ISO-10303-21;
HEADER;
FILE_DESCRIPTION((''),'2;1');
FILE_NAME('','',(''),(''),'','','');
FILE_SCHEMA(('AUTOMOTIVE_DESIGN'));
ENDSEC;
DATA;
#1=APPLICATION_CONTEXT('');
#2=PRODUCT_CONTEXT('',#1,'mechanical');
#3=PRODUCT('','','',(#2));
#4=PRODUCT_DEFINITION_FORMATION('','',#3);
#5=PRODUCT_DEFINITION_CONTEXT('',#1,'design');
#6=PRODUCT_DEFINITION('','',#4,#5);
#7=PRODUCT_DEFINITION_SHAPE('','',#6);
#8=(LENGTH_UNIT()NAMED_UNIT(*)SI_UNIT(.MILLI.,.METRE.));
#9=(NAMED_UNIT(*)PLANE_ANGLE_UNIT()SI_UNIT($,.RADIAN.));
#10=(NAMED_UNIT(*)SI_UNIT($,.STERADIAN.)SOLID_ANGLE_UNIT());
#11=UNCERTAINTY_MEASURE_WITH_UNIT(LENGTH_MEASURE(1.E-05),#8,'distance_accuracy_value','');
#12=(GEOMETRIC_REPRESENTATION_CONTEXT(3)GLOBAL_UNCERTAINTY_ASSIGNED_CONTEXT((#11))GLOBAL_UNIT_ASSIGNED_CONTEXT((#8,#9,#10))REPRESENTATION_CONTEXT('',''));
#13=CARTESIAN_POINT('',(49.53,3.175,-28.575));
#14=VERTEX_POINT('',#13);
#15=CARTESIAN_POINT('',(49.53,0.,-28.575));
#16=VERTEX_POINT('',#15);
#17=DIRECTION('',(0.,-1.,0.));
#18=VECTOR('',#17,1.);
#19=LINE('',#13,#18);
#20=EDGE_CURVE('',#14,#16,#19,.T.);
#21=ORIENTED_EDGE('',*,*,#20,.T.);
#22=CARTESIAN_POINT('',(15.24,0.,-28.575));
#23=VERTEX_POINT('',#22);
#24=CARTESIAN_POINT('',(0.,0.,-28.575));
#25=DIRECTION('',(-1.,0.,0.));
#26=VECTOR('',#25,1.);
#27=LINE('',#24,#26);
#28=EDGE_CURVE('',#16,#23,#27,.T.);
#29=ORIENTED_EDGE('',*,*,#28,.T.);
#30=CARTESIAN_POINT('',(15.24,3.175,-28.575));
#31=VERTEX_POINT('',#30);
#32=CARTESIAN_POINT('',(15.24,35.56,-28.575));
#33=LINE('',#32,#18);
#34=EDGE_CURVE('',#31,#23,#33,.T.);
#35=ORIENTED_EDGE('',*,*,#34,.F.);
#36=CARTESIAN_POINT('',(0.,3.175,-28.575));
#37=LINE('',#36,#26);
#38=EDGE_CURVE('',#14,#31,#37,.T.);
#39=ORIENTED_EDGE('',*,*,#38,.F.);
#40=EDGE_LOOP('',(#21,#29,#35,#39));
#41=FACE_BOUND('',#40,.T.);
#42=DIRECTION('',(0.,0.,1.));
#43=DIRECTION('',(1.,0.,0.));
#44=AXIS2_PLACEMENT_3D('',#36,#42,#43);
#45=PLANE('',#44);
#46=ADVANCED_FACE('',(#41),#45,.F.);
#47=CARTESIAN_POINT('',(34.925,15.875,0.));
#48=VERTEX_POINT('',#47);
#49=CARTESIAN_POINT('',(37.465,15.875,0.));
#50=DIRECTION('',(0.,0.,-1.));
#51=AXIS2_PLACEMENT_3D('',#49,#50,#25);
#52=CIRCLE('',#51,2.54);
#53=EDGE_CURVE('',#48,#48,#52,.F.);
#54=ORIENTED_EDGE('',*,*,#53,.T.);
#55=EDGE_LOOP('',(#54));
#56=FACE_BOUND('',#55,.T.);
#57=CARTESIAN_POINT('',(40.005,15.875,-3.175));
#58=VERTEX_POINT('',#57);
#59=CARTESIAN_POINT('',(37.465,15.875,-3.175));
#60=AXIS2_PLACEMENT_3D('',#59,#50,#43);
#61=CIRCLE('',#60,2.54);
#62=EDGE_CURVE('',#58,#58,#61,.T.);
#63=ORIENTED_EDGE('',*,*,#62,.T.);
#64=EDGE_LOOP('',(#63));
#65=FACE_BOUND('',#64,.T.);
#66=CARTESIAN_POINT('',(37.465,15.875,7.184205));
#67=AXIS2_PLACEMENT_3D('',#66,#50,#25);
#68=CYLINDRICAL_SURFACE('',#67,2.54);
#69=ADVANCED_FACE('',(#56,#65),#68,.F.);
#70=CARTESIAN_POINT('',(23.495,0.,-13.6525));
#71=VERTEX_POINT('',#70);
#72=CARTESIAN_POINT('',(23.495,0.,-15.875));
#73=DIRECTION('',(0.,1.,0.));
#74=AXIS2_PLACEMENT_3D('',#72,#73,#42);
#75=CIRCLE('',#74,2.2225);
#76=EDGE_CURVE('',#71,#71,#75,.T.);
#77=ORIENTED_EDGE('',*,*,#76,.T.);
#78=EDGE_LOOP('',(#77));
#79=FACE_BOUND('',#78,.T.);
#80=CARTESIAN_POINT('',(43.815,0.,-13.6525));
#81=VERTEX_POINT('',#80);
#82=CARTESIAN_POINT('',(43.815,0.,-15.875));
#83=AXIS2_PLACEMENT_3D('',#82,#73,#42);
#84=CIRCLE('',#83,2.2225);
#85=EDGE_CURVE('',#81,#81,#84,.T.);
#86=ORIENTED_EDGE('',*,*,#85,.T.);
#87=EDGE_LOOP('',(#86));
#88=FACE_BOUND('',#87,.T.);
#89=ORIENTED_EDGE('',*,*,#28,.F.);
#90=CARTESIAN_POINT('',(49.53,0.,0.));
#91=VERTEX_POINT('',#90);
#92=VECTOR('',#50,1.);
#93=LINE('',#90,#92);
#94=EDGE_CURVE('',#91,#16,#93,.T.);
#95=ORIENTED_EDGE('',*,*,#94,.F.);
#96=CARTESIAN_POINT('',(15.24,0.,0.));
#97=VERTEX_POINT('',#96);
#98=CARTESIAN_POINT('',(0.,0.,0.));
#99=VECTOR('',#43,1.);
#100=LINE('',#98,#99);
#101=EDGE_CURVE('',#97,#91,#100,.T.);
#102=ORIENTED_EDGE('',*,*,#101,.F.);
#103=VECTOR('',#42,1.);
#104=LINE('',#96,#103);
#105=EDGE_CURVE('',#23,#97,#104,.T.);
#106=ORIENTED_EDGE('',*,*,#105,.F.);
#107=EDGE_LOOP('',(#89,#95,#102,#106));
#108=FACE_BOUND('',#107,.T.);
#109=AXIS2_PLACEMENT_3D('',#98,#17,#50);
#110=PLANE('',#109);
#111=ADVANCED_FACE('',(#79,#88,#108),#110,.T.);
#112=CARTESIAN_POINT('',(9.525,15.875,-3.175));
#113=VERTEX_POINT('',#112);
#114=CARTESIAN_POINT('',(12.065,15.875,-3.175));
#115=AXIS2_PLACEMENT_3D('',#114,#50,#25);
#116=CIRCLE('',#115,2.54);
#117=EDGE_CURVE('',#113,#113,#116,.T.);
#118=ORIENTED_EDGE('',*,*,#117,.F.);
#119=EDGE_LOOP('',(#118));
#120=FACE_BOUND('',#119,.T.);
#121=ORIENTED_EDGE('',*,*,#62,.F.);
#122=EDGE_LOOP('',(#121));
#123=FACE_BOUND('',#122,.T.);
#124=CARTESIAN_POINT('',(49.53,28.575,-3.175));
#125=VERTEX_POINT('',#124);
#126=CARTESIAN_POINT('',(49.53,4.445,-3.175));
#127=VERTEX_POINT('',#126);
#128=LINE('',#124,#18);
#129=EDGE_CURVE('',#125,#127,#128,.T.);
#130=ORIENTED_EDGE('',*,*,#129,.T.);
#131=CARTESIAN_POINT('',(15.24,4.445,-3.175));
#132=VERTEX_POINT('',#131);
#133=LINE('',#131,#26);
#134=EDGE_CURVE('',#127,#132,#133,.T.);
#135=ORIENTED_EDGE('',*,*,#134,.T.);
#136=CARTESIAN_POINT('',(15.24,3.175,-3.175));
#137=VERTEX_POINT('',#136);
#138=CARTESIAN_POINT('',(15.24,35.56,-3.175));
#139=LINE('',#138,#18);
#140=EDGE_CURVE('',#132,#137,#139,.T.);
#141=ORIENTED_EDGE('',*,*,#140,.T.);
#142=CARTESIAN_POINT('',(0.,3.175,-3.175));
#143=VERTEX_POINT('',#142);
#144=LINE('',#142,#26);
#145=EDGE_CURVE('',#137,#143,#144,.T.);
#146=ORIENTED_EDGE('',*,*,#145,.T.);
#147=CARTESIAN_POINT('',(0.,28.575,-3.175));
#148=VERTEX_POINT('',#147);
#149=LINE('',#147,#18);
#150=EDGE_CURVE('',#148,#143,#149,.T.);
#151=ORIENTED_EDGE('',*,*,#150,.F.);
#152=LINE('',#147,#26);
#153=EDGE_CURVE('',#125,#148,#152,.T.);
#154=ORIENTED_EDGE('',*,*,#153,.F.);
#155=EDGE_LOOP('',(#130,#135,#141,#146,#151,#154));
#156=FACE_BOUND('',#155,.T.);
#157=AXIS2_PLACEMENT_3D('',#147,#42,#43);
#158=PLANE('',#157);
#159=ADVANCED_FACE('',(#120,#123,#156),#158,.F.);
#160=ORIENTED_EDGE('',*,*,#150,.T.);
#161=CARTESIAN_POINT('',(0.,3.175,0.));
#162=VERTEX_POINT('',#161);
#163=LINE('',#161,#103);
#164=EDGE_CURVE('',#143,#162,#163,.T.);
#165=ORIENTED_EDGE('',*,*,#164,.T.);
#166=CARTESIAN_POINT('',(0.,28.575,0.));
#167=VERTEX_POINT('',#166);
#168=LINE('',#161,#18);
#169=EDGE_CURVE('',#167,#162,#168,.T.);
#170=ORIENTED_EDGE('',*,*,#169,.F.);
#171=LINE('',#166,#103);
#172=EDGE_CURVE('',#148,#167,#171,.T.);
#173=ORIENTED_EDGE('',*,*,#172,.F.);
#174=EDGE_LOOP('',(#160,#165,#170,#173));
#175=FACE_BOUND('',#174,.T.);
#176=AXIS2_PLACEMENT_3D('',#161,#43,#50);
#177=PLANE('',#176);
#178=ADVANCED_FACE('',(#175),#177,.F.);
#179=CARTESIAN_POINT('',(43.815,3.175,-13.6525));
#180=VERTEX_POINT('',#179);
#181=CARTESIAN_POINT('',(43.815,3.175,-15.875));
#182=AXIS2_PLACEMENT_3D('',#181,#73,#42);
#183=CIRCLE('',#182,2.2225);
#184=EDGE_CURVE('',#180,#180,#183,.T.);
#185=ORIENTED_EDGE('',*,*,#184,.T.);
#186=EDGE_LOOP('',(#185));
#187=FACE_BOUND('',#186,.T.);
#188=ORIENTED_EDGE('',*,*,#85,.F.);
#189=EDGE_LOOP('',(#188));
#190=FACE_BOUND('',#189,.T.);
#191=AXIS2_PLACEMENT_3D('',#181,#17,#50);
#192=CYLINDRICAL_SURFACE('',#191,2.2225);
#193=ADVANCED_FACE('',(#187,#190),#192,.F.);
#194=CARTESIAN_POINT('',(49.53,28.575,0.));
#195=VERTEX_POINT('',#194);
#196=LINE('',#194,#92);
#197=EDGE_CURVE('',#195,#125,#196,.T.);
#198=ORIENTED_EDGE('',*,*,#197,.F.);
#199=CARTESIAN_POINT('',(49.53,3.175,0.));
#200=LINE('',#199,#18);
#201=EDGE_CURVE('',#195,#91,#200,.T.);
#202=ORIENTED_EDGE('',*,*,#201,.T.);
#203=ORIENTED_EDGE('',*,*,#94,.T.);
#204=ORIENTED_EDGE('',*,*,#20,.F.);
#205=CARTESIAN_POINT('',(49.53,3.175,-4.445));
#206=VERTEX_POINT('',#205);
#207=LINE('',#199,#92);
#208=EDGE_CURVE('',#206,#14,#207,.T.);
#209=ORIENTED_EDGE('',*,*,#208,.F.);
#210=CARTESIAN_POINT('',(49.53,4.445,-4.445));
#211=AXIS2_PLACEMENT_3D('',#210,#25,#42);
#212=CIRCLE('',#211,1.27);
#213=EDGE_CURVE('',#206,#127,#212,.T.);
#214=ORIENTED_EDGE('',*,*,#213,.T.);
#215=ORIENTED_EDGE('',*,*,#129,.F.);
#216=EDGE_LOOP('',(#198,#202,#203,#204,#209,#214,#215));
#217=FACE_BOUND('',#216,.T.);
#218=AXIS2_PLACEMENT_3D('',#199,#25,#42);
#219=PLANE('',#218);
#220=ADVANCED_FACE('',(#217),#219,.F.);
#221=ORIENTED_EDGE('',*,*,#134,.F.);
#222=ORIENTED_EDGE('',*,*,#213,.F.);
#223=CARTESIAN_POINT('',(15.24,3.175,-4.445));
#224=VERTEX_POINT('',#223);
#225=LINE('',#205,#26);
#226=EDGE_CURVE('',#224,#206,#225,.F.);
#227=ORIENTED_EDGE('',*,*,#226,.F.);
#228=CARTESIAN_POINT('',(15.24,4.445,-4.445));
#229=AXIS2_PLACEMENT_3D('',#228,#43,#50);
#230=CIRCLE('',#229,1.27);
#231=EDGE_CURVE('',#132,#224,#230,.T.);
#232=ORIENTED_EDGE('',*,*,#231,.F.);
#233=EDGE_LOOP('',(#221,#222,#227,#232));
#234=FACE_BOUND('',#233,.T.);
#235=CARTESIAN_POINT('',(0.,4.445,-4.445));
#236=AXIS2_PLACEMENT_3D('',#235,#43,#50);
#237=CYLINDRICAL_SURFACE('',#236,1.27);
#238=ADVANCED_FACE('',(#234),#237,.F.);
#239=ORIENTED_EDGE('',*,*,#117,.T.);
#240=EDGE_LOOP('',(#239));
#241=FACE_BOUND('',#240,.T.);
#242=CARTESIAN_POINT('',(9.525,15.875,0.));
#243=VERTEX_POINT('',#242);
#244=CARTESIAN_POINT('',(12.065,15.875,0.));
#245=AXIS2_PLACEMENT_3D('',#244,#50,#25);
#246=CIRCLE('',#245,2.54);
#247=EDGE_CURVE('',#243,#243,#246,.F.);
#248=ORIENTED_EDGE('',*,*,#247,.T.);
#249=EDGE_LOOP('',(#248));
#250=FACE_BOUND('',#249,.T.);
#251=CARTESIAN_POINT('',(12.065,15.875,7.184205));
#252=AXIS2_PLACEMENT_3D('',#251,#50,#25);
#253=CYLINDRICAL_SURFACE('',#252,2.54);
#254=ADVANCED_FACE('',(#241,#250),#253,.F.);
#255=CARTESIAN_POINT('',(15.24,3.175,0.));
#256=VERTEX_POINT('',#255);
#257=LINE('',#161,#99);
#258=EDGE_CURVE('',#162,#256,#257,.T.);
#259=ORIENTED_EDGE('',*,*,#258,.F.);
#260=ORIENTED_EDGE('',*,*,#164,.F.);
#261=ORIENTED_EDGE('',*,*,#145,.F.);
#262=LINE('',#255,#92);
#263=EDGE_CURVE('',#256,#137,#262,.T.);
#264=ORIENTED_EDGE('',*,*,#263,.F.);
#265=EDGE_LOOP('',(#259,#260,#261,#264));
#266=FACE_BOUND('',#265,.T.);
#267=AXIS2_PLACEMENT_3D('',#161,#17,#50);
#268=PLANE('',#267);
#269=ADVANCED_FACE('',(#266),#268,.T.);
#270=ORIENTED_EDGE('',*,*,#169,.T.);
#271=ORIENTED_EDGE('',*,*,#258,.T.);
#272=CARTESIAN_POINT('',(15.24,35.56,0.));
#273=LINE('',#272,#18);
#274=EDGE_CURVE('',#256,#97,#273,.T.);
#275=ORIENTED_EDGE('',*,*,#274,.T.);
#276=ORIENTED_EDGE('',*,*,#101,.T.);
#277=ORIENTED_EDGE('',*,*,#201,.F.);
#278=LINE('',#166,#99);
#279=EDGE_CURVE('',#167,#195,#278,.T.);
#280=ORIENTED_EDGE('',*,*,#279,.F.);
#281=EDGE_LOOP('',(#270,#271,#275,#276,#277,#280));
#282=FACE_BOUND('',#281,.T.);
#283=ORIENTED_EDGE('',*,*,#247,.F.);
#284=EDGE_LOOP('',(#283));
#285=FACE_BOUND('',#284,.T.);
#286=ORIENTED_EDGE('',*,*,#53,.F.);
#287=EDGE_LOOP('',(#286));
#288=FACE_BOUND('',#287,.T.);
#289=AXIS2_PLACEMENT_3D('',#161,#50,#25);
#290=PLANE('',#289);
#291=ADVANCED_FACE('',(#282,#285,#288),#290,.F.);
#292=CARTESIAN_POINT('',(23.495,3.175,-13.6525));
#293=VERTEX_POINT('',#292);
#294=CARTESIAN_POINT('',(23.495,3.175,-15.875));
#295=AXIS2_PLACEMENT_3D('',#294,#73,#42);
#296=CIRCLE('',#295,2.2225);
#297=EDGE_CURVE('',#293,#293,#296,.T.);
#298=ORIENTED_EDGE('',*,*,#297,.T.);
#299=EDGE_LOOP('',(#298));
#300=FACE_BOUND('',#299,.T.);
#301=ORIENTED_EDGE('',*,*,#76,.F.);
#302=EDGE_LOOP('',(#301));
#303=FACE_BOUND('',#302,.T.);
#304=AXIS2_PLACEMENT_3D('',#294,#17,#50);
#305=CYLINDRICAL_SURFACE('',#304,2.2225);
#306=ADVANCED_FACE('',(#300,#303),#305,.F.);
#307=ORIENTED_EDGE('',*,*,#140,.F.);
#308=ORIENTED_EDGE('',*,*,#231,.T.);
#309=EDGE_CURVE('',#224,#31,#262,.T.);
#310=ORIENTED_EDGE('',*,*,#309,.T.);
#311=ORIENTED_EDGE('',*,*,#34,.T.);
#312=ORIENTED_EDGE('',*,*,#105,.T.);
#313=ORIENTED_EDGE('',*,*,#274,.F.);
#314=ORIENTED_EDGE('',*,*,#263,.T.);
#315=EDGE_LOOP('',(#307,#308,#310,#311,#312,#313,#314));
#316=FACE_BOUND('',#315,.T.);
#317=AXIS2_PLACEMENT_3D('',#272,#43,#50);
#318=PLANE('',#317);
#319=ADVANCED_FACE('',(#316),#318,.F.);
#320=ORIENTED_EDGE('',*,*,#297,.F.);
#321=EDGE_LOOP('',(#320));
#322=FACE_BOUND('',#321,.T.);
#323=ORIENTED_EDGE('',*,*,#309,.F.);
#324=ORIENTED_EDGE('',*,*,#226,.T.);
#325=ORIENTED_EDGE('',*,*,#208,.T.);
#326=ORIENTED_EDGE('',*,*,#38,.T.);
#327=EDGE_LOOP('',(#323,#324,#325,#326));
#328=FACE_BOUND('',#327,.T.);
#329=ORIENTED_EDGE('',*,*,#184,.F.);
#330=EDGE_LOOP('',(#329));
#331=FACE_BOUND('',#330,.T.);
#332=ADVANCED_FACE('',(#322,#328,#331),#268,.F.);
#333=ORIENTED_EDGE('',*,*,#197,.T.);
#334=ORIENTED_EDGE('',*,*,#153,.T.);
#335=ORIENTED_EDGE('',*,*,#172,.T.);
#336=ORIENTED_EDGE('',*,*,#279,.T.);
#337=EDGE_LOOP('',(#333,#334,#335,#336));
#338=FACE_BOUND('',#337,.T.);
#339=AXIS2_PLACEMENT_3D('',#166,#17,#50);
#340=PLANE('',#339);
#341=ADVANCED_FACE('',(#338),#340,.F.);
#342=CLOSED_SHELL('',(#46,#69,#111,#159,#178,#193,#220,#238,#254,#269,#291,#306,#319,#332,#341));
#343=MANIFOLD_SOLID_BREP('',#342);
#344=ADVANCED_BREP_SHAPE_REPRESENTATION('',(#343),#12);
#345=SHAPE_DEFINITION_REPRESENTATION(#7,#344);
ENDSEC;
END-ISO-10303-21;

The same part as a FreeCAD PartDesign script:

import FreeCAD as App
import Part
import Sketcher

V = App.Vector
Q = App.Units.Quantity


def edges_at(feature, points):
    """Names of the edges that pass closest to the given points."""
    edges = feature.Shape.Edges
    near = lambda p: min(range(len(edges)), key=lambda i: edges[i].distToShape(Part.Vertex(*p))[0])
    return sorted({f"Edge{near(p) + 1}" for p in points})


def add_polygon(sketch, points):
    """Adds a closed chain of lines whose ends are joined by coincident constraints."""
    first, n = sketch.GeometryCount, len(points)
    for a, b in zip(points, points[1:] + points[:1]):
        sketch.addGeometry(Part.LineSegment(App.Vector(*a, 0), App.Vector(*b, 0)), False)
    for i in range(n):
        sketch.addConstraint(Sketcher.Constraint("Coincident", first + i, 2, first + (i + 1) % n, 1))

doc = App.newDocument("Part")
body = doc.addObject("PartDesign::Body", "Body")

# Sketch on XZ plane
sketch1 = body.newObject("Sketcher::SketchObject", "Sketch")
sketch1.AttachmentSupport = (doc.getObject("XZ_Plane"), [""])
sketch1.MapMode = "FlatFace"
add_polygon(sketch1, [(0, -28.6), (0, 0), (49.5, 0), (49.5, -28.6)])  # lines 0-3
sketch1.addGeometry(Part.Circle(V(23.5, -15.9, 0), V(0, 0, 1), 2.2), False)  # 4
sketch1.addGeometry(Part.Circle(V(43.8, -15.9, 0), V(0, 0, 1), 2.2), False)  # 5
sketch1.addConstraint([
    Sketcher.Constraint("Vertical", 0),
    Sketcher.Constraint("Horizontal", 1),
    Sketcher.Constraint("Vertical", 2),
    Sketcher.Constraint("Horizontal", 3),
    Sketcher.Constraint("Coincident", 0, 2, -1, 1),
    Sketcher.Constraint("Equal", 4, 5),
    Sketcher.Constraint("Horizontal", 4, 3, 5, 3),
    Sketcher.Constraint("Diameter", 4, Q("0.175 in")),
    Sketcher.Constraint("DistanceX", 1, 1, 1, 2, Q("1.95 in")),
    Sketcher.Constraint("DistanceX", 4, 3, 5, 3, Q("0.8 in")),
    Sketcher.Constraint("DistanceY", 2, 2, 5, 3, Q("0.5 in")),
    Sketcher.Constraint("DistanceY", 0, 1, 0, 2, Q("1.125 in")),
    Sketcher.Constraint("DistanceX", -1, 1, 4, 3, Q("0.925 in")),
])
pad1 = body.newObject("PartDesign::Pad", "Pad")
pad1.Profile = sketch1
pad1.Length = Q("0.125 in")
pad1.Reversed = True

# Sketch on XZ plane
sketch2 = body.newObject("Sketcher::SketchObject", "Sketch001")
sketch2.AttachmentSupport = (doc.getObject("XZ_Plane"), [""])
sketch2.MapMode = "FlatFace"
sketch2.AttachmentOffset = App.Placement(V(0, 0, -0.125 * 25.4), App.Rotation())
add_polygon(sketch2, [(0, -3.2), (0, 0), (49.5, 0), (49.5, -3.2)])  # lines 0-3
sketch2.addConstraint([
    Sketcher.Constraint("Vertical", 0),
    Sketcher.Constraint("Horizontal", 1),
    Sketcher.Constraint("Vertical", 2),
    Sketcher.Constraint("Horizontal", 3),
    Sketcher.Constraint("Coincident", 0, 2, -1, 1),
    Sketcher.Constraint("DistanceX", 1, 1, 1, 2, Q("1.95 in")),
    Sketcher.Constraint("DistanceY", 0, 1, 0, 2, Q("0.125 in")),
])
pad2 = body.newObject("PartDesign::Pad", "Pad001")
pad2.Profile = sketch2
pad2.Length = Q("1 in")
pad2.Reversed = True

# Sketch on XY plane
sketch3 = body.newObject("Sketcher::SketchObject", "Sketch002")
sketch3.AttachmentSupport = (doc.getObject("XY_Plane"), [""])
sketch3.MapMode = "FlatFace"
sketch3.AttachmentOffset = App.Placement(V(0, 0, -0.125 * 25.4), App.Rotation())
sketch3.addGeometry([
    Part.Circle(V(12.1, 15.9, 0), V(0, 0, 1), 2.5),
    Part.Circle(V(37.5, 15.9, 0), V(0, 0, 1), 2.5),
], False)
sketch3.addConstraint([
    Sketcher.Constraint("Equal", 0, 1),
    Sketcher.Constraint("Horizontal", 0, 3, 1, 3),
    Sketcher.Constraint("Diameter", 0, Q("0.2 in")),
    Sketcher.Constraint("DistanceX", 0, 3, 1, 3, Q("1 in")),
    Sketcher.Constraint("DistanceX", -1, 1, 0, 3, Q("0.475 in")),
    Sketcher.Constraint("DistanceY", -1, 1, 0, 3, Q("0.625 in")),
])
pocket1 = body.newObject("PartDesign::Pocket", "Pocket")
pocket1.Profile = sketch3
pocket1.Length = Q("0.125 in")
pocket1.Reversed = True

# Sketch on XZ plane
sketch4 = body.newObject("Sketcher::SketchObject", "Sketch003")
sketch4.AttachmentSupport = (doc.getObject("XZ_Plane"), [""])
sketch4.MapMode = "FlatFace"
add_polygon(sketch4, [(0, 0), (0, -29), (15, -29), (15, 0)])  # lines 0-3
sketch4.addConstraint([
    Sketcher.Constraint("Vertical", 0),
    Sketcher.Constraint("Horizontal", 1),
    Sketcher.Constraint("Vertical", 2),
    Sketcher.Constraint("Horizontal", 3),
    Sketcher.Constraint("Coincident", 3, 2, -1, 1),
    Sketcher.Constraint("DistanceX", 1, 1, 1, 2, Q("0.6 in")),
    Sketcher.Constraint("DistanceY", 0, 2, 0, 1, Q("1.125 in")),
])
pocket2 = body.newObject("PartDesign::Pocket", "Pocket001")
pocket2.Profile = sketch4
pocket2.Length = Q("0.125 in")
doc.recompute()

fillet = body.newObject("PartDesign::Fillet", "Fillet")
fillet.Base = (pocket2, edges_at(pocket2, [(32.385, 3.175, -3.175)]))
fillet.Radius = Q("0.05 in")

doc.recompute()
